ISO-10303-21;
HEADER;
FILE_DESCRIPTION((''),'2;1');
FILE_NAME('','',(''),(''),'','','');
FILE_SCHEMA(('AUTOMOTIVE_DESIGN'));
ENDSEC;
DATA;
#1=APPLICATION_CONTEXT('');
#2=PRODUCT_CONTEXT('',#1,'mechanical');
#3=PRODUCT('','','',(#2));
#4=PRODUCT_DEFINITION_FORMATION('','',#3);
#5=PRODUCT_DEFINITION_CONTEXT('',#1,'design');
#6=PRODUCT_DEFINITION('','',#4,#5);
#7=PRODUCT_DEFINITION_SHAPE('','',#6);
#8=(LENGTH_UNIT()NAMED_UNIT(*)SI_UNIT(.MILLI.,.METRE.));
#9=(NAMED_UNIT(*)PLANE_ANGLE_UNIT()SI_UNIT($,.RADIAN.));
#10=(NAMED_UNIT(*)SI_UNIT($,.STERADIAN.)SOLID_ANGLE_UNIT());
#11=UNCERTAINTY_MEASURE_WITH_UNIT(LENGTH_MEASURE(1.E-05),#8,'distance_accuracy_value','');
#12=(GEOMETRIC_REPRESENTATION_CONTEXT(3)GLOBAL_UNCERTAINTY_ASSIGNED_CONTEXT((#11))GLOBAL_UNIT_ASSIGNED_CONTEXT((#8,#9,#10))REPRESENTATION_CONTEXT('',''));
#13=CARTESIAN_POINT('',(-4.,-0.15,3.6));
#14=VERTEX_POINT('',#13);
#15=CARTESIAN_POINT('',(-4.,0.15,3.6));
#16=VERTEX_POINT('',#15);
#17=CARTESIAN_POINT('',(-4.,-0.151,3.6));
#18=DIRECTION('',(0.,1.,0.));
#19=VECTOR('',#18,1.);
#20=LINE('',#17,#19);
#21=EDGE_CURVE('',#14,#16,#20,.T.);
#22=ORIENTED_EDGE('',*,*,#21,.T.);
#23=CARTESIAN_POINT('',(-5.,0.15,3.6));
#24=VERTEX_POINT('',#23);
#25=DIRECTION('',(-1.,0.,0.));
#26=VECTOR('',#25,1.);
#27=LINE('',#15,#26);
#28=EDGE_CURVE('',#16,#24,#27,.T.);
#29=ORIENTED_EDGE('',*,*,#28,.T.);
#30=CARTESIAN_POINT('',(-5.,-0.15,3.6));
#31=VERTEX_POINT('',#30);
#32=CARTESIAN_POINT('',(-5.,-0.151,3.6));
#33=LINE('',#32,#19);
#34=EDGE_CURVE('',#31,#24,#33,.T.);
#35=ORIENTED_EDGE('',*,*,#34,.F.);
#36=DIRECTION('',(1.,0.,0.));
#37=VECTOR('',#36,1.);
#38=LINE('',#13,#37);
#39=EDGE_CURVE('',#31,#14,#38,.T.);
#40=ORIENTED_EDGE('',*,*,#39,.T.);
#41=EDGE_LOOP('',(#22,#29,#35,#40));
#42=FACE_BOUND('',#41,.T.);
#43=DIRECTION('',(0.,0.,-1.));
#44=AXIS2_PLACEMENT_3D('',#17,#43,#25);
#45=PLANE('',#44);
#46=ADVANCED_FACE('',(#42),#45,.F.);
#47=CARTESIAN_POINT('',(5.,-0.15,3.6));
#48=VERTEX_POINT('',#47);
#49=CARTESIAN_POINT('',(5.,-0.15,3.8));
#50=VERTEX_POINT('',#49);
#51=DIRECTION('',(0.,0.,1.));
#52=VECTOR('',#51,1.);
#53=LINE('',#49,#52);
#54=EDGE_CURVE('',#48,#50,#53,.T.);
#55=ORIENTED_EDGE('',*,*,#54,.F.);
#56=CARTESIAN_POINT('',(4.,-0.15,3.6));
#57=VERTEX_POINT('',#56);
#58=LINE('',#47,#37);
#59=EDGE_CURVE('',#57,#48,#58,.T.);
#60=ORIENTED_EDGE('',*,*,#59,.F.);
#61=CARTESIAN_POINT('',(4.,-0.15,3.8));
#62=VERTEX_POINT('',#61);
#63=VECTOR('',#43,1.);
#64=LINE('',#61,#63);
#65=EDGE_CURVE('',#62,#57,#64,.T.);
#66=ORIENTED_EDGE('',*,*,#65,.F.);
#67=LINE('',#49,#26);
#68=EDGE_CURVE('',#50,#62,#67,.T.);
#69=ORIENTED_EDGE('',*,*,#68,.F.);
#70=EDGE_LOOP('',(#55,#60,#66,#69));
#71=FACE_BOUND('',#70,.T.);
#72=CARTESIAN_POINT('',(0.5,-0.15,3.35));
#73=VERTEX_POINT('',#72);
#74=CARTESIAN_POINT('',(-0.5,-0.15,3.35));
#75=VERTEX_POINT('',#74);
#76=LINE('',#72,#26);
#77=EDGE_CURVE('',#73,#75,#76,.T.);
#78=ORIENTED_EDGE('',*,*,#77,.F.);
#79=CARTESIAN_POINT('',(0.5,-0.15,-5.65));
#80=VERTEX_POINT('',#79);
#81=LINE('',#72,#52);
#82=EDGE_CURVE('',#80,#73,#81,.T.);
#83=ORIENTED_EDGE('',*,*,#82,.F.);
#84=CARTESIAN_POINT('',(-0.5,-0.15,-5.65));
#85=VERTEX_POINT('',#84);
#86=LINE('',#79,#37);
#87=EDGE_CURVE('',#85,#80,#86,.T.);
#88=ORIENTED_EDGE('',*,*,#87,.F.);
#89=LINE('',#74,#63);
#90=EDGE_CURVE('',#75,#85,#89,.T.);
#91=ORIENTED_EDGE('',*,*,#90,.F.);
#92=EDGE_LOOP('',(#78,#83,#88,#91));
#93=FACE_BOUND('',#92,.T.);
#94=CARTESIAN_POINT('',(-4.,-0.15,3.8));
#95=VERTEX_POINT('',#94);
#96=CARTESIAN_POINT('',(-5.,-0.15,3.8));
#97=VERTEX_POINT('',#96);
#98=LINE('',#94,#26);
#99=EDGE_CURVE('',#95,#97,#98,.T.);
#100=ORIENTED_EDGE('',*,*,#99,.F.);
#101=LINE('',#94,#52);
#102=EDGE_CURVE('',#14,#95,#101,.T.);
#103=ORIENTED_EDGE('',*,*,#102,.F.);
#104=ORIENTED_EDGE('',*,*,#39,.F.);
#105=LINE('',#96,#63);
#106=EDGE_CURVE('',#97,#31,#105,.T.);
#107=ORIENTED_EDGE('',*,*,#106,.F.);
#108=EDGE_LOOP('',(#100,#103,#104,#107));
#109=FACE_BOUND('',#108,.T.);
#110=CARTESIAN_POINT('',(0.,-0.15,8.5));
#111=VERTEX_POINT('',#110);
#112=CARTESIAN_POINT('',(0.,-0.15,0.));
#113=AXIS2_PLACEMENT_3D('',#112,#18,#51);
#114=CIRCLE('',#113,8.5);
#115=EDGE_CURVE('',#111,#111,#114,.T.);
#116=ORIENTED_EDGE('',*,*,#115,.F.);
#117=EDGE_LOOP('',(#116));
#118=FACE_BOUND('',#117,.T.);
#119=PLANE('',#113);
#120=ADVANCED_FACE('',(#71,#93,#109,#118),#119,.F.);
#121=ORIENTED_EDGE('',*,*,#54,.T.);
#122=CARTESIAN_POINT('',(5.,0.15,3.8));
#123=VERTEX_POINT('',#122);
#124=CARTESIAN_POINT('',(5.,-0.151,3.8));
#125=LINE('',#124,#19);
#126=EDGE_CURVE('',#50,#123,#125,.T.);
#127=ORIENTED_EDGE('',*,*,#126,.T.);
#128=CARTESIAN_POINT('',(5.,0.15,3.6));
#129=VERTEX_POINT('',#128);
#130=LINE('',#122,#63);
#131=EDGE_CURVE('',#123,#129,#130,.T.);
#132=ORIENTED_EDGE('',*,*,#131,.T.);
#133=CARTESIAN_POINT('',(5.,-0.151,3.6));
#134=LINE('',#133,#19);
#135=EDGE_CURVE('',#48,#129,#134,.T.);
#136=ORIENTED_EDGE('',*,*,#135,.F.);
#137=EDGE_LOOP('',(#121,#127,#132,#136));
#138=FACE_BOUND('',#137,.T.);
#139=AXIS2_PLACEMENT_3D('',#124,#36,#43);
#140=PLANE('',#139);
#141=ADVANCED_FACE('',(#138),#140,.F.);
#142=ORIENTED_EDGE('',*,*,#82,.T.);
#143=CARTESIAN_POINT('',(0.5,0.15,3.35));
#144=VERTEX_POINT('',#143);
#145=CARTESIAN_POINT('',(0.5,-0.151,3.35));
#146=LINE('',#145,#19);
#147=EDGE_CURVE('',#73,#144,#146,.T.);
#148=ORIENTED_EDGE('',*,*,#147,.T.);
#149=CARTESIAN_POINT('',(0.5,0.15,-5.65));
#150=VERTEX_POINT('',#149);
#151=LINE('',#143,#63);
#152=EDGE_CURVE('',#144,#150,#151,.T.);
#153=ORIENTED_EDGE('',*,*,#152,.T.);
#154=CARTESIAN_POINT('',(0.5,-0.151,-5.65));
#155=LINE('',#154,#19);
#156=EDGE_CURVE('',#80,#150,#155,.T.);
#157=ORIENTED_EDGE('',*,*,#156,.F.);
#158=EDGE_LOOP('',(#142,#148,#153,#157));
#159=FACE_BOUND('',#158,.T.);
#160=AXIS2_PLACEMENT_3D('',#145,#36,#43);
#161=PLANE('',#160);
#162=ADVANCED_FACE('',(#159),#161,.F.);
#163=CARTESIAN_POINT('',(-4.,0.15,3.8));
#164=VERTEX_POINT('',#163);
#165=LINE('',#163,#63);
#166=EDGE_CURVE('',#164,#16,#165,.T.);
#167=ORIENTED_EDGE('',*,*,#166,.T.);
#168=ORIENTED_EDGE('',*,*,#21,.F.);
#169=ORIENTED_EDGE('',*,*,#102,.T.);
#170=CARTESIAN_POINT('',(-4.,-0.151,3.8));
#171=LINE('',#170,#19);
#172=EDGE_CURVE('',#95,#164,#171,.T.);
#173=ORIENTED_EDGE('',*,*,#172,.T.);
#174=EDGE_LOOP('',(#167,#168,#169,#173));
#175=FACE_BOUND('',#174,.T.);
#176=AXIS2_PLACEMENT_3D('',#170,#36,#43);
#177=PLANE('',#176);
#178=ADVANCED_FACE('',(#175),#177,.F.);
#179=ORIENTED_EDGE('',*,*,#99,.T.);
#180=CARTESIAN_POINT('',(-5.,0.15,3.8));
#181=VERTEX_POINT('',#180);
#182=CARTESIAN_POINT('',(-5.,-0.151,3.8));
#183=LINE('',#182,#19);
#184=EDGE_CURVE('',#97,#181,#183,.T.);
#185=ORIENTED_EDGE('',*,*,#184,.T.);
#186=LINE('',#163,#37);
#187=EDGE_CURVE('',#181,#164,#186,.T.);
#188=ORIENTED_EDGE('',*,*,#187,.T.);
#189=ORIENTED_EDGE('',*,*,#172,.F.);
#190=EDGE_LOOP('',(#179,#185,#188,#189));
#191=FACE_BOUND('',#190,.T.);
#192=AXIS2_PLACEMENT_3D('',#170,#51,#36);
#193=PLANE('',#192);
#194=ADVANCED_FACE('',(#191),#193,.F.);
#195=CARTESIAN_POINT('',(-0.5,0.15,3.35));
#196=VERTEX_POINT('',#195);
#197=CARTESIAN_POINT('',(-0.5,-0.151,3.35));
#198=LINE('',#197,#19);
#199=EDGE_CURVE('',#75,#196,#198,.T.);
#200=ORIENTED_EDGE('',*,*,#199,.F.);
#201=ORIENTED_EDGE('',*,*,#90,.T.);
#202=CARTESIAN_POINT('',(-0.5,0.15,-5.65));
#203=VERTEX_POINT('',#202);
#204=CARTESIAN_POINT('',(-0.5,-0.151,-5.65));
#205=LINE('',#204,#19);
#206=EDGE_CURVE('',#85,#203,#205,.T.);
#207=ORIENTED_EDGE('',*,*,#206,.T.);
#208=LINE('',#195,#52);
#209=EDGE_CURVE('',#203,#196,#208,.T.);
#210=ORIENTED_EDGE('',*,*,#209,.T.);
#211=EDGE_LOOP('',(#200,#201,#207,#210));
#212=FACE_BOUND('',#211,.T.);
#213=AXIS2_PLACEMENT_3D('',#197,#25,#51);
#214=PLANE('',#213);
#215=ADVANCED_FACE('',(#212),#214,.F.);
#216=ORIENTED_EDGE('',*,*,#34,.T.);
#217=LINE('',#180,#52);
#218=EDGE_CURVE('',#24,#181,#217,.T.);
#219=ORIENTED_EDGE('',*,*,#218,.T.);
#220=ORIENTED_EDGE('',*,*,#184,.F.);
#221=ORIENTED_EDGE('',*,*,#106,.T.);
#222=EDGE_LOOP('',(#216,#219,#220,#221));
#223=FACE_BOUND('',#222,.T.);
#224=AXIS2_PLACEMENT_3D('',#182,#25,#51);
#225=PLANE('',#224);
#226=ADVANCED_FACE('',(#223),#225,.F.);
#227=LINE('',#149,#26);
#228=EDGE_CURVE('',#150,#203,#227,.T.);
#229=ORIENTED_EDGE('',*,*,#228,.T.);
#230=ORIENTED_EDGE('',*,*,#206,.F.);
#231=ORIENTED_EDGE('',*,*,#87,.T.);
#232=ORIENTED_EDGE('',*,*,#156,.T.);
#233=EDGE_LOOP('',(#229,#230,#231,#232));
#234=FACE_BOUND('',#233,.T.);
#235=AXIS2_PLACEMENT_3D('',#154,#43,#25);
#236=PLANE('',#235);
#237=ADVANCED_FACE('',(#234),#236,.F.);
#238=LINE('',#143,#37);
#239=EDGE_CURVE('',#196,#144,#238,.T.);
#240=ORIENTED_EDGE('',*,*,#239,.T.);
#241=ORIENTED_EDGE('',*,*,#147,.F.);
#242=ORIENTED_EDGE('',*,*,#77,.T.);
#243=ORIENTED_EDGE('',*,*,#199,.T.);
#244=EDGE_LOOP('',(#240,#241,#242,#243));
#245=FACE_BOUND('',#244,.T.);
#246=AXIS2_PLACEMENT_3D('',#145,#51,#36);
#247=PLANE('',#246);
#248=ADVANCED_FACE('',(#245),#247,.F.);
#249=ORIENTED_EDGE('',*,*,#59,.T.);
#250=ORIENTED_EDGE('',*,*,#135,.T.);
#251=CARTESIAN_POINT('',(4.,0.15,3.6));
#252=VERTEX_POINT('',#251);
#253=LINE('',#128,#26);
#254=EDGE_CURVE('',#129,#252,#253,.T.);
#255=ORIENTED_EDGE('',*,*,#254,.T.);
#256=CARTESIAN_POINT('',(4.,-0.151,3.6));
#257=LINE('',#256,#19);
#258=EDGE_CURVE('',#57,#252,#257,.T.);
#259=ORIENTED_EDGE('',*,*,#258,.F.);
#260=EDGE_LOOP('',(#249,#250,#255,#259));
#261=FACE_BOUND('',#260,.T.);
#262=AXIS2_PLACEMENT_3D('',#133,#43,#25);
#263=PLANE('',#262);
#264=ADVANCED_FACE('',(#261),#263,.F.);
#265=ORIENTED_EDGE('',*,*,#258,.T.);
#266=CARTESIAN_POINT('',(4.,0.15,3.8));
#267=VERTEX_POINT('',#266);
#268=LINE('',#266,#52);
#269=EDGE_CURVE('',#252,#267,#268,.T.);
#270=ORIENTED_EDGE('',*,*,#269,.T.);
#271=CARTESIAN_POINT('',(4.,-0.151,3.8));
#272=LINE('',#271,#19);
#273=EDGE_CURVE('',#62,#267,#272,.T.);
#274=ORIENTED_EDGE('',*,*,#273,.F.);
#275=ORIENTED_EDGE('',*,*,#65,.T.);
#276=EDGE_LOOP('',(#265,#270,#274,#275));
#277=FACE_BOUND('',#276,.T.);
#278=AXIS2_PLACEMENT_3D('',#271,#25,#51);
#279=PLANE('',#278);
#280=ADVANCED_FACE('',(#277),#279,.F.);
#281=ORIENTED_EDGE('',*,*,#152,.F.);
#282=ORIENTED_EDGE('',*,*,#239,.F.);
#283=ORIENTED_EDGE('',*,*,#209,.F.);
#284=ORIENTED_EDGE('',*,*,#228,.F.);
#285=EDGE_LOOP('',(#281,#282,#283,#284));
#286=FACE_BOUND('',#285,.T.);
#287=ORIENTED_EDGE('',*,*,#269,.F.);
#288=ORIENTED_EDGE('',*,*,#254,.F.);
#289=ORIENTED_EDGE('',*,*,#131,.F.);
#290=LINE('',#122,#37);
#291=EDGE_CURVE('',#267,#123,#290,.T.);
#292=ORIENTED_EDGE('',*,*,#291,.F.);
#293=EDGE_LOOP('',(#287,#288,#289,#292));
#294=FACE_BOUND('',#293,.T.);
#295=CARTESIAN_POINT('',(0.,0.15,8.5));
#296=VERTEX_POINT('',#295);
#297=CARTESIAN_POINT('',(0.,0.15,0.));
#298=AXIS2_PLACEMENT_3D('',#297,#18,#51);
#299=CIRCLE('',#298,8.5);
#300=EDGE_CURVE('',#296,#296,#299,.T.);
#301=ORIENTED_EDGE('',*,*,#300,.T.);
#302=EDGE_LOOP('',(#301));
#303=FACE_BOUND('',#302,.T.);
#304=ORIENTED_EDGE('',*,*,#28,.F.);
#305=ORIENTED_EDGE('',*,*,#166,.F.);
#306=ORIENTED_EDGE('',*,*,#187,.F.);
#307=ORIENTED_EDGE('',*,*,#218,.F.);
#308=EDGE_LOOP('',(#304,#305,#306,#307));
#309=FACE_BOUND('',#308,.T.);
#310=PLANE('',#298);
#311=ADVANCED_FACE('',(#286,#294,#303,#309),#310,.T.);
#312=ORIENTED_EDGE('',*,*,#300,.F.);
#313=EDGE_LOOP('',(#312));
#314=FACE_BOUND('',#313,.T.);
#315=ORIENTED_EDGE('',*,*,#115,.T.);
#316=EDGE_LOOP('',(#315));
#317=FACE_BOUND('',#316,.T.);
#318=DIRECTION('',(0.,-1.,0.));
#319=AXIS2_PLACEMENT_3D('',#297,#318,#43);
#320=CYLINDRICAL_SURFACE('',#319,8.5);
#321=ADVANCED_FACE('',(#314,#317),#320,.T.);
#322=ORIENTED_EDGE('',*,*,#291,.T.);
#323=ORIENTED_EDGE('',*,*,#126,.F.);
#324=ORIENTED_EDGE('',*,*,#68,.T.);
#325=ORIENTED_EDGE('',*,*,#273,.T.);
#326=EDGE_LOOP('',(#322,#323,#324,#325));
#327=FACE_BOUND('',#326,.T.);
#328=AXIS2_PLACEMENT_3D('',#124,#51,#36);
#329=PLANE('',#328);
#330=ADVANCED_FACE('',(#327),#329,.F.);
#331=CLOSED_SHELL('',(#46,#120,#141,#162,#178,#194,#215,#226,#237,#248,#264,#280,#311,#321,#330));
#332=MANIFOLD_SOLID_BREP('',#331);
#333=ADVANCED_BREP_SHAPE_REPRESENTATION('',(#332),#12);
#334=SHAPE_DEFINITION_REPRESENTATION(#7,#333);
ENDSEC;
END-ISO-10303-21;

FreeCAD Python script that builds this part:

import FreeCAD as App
import Part
import Sketcher

V = App.Vector
Q = App.Units.Quantity

doc = App.newDocument("Part")
body = doc.addObject("PartDesign::Body", "Body")

# Sketch on XZ plane
sketch1 = body.newObject("Sketcher::SketchObject", "Sketch")
sketch1.AttachmentSupport = (doc.getObject("XZ_Plane"), [""])
sketch1.MapMode = "FlatFace"
sketch1.addGeometry(Part.Circle(V(0, 0, 0), V(0, 0, 1), 8.5), False)
sketch1.addConstraint([
    Sketcher.Constraint("Coincident", 0, 3, -1, 1),
    Sketcher.Constraint("Diameter", 0, Q("17 mm")),
])
pad1 = body.newObject("PartDesign::Pad", "Pad")
pad1.Profile = sketch1
pad1.Length = 0.3
pad1.Midplane = True

# Sketch on XZ plane
sketch2 = body.newObject("Sketcher::SketchObject", "Sketch001")
sketch2.AttachmentSupport = (doc.getObject("XZ_Plane"), [""])
sketch2.MapMode = "FlatFace"
sketch2.AttachmentOffset = App.Placement(V(0, 0, -0.15), App.Rotation())
sketch2.addGeometry([
    Part.LineSegment(V(-0.5, -5.65, 0), V(-0.5, 3.35, 0)),
    Part.LineSegment(V(-0.5, 3.35, 0), V(0.5, 3.35, 0)),
    Part.LineSegment(V(0.5, 3.35, 0), V(0.5, -5.65, 0)),
    Part.LineSegment(V(0.5, -5.65, 0), V(-0.5, -5.65, 0)),
], False)
sketch2.addConstraint([
    Sketcher.Constraint("Coincident", 0, 2, 1, 1),
    Sketcher.Constraint("Coincident", 1, 2, 2, 1),
    Sketcher.Constraint("Coincident", 2, 2, 3, 1),
    Sketcher.Constraint("Coincident", 3, 2, 0, 1),
    Sketcher.Constraint("Vertical", 0),
    Sketcher.Constraint("Horizontal", 1),
    Sketcher.Constraint("Vertical", 2),
    Sketcher.Constraint("Horizontal", 3),
    Sketcher.Constraint("DistanceX", 1, 1, 1, 2, Q("1 mm")),
    Sketcher.Constraint("DistanceY", 0, 1, 0, 2, Q("9 mm")),
    Sketcher.Constraint("DistanceX", 0, 2, -1, 1, Q("0.5 mm")),
    Sketcher.Constraint("DistanceY", -1, 1, 0, 2, Q("3.35 mm")),
])
pocket1 = body.newObject("PartDesign::Pocket", "Pocket")
pocket1.Profile = sketch2
pocket1.Type = "UpToFirst"
pocket1.Reversed = True

# Sketch on XZ plane
sketch3 = body.newObject("Sketcher::SketchObject", "Sketch002")
sketch3.AttachmentSupport = (doc.getObject("XZ_Plane"), [""])
sketch3.MapMode = "FlatFace"
sketch3.AttachmentOffset = App.Placement(V(0, 0, -0.15), App.Rotation())
sketch3.addGeometry([
    Part.LineSegment(V(4, 3.6, 0), V(4, 3.8, 0)),
    Part.LineSegment(V(4, 3.8, 0), V(5, 3.8, 0)),
    Part.LineSegment(V(5, 3.8, 0), V(5, 3.6, 0)),
    Part.LineSegment(V(5, 3.6, 0), V(4, 3.6, 0)),
], False)
sketch3.addConstraint([
    Sketcher.Constraint("Coincident", 0, 2, 1, 1),
    Sketcher.Constraint("Coincident", 1, 2, 2, 1),
    Sketcher.Constraint("Coincident", 2, 2, 3, 1),
    Sketcher.Constraint("Coincident", 3, 2, 0, 1),
    Sketcher.Constraint("Vertical", 0),
    Sketcher.Constraint("Horizontal", 1),
    Sketcher.Constraint("Vertical", 2),
    Sketcher.Constraint("Horizontal", 3),
    Sketcher.Constraint("DistanceX", 1, 1, 1, 2, Q("1 mm")),
    Sketcher.Constraint("DistanceY", 0, 1, 0, 2, Q("0.2 mm")),
    Sketcher.Constraint("DistanceX", -1, 1, 0, 2, Q("4 mm")),
    Sketcher.Constraint("DistanceY", -1, 1, 0, 2, Q("3.8 mm")),
])
pocket2 = body.newObject("PartDesign::Pocket", "Pocket001")
pocket2.Profile = sketch3
pocket2.Type = "UpToFirst"
pocket2.Reversed = True

# Sketch on XZ plane
sketch4 = body.newObject("Sketcher::SketchObject", "Sketch003")
sketch4.AttachmentSupport = (doc.getObject("XZ_Plane"), [""])
sketch4.MapMode = "FlatFace"
sketch4.AttachmentOffset = App.Placement(V(0, 0, -0.15), App.Rotation())
sketch4.addGeometry([
    Part.LineSegment(V(-5, 3.6, 0), V(-5, 3.8, 0)),
    Part.LineSegment(V(-5, 3.8, 0), V(-4, 3.8, 0)),
    Part.LineSegment(V(-4, 3.8, 0), V(-4, 3.6, 0)),
    Part.LineSegment(V(-4, 3.6, 0), V(-5, 3.6, 0)),
], False)
sketch4.addConstraint([
    Sketcher.Constraint("Coincident", 0, 2, 1, 1),
    Sketcher.Constraint("Coincident", 1, 2, 2, 1),
    Sketcher.Constraint("Coincident", 2, 2, 3, 1),
    Sketcher.Constraint("Coincident", 3, 2, 0, 1),
    Sketcher.Constraint("Vertical", 0),
    Sketcher.Constraint("Horizontal", 1),
    Sketcher.Constraint("Vertical", 2),
    Sketcher.Constraint("Horizontal", 3),
    Sketcher.Constraint("DistanceX", 1, 1, 1, 2, Q("1 mm")),
    Sketcher.Constraint("DistanceY", 0, 1, 0, 2, Q("0.2 mm")),
    Sketcher.Constraint("DistanceX", 0, 2, -1, 1, Q("5 mm")),
    Sketcher.Constraint("DistanceY", -1, 1, 0, 2, Q("3.8 mm")),
])
pocket3 = body.newObject("PartDesign::Pocket", "Pocket002")
pocket3.Profile = sketch4
pocket3.Type = "UpToFirst"
pocket3.Reversed = True

doc.recompute()
